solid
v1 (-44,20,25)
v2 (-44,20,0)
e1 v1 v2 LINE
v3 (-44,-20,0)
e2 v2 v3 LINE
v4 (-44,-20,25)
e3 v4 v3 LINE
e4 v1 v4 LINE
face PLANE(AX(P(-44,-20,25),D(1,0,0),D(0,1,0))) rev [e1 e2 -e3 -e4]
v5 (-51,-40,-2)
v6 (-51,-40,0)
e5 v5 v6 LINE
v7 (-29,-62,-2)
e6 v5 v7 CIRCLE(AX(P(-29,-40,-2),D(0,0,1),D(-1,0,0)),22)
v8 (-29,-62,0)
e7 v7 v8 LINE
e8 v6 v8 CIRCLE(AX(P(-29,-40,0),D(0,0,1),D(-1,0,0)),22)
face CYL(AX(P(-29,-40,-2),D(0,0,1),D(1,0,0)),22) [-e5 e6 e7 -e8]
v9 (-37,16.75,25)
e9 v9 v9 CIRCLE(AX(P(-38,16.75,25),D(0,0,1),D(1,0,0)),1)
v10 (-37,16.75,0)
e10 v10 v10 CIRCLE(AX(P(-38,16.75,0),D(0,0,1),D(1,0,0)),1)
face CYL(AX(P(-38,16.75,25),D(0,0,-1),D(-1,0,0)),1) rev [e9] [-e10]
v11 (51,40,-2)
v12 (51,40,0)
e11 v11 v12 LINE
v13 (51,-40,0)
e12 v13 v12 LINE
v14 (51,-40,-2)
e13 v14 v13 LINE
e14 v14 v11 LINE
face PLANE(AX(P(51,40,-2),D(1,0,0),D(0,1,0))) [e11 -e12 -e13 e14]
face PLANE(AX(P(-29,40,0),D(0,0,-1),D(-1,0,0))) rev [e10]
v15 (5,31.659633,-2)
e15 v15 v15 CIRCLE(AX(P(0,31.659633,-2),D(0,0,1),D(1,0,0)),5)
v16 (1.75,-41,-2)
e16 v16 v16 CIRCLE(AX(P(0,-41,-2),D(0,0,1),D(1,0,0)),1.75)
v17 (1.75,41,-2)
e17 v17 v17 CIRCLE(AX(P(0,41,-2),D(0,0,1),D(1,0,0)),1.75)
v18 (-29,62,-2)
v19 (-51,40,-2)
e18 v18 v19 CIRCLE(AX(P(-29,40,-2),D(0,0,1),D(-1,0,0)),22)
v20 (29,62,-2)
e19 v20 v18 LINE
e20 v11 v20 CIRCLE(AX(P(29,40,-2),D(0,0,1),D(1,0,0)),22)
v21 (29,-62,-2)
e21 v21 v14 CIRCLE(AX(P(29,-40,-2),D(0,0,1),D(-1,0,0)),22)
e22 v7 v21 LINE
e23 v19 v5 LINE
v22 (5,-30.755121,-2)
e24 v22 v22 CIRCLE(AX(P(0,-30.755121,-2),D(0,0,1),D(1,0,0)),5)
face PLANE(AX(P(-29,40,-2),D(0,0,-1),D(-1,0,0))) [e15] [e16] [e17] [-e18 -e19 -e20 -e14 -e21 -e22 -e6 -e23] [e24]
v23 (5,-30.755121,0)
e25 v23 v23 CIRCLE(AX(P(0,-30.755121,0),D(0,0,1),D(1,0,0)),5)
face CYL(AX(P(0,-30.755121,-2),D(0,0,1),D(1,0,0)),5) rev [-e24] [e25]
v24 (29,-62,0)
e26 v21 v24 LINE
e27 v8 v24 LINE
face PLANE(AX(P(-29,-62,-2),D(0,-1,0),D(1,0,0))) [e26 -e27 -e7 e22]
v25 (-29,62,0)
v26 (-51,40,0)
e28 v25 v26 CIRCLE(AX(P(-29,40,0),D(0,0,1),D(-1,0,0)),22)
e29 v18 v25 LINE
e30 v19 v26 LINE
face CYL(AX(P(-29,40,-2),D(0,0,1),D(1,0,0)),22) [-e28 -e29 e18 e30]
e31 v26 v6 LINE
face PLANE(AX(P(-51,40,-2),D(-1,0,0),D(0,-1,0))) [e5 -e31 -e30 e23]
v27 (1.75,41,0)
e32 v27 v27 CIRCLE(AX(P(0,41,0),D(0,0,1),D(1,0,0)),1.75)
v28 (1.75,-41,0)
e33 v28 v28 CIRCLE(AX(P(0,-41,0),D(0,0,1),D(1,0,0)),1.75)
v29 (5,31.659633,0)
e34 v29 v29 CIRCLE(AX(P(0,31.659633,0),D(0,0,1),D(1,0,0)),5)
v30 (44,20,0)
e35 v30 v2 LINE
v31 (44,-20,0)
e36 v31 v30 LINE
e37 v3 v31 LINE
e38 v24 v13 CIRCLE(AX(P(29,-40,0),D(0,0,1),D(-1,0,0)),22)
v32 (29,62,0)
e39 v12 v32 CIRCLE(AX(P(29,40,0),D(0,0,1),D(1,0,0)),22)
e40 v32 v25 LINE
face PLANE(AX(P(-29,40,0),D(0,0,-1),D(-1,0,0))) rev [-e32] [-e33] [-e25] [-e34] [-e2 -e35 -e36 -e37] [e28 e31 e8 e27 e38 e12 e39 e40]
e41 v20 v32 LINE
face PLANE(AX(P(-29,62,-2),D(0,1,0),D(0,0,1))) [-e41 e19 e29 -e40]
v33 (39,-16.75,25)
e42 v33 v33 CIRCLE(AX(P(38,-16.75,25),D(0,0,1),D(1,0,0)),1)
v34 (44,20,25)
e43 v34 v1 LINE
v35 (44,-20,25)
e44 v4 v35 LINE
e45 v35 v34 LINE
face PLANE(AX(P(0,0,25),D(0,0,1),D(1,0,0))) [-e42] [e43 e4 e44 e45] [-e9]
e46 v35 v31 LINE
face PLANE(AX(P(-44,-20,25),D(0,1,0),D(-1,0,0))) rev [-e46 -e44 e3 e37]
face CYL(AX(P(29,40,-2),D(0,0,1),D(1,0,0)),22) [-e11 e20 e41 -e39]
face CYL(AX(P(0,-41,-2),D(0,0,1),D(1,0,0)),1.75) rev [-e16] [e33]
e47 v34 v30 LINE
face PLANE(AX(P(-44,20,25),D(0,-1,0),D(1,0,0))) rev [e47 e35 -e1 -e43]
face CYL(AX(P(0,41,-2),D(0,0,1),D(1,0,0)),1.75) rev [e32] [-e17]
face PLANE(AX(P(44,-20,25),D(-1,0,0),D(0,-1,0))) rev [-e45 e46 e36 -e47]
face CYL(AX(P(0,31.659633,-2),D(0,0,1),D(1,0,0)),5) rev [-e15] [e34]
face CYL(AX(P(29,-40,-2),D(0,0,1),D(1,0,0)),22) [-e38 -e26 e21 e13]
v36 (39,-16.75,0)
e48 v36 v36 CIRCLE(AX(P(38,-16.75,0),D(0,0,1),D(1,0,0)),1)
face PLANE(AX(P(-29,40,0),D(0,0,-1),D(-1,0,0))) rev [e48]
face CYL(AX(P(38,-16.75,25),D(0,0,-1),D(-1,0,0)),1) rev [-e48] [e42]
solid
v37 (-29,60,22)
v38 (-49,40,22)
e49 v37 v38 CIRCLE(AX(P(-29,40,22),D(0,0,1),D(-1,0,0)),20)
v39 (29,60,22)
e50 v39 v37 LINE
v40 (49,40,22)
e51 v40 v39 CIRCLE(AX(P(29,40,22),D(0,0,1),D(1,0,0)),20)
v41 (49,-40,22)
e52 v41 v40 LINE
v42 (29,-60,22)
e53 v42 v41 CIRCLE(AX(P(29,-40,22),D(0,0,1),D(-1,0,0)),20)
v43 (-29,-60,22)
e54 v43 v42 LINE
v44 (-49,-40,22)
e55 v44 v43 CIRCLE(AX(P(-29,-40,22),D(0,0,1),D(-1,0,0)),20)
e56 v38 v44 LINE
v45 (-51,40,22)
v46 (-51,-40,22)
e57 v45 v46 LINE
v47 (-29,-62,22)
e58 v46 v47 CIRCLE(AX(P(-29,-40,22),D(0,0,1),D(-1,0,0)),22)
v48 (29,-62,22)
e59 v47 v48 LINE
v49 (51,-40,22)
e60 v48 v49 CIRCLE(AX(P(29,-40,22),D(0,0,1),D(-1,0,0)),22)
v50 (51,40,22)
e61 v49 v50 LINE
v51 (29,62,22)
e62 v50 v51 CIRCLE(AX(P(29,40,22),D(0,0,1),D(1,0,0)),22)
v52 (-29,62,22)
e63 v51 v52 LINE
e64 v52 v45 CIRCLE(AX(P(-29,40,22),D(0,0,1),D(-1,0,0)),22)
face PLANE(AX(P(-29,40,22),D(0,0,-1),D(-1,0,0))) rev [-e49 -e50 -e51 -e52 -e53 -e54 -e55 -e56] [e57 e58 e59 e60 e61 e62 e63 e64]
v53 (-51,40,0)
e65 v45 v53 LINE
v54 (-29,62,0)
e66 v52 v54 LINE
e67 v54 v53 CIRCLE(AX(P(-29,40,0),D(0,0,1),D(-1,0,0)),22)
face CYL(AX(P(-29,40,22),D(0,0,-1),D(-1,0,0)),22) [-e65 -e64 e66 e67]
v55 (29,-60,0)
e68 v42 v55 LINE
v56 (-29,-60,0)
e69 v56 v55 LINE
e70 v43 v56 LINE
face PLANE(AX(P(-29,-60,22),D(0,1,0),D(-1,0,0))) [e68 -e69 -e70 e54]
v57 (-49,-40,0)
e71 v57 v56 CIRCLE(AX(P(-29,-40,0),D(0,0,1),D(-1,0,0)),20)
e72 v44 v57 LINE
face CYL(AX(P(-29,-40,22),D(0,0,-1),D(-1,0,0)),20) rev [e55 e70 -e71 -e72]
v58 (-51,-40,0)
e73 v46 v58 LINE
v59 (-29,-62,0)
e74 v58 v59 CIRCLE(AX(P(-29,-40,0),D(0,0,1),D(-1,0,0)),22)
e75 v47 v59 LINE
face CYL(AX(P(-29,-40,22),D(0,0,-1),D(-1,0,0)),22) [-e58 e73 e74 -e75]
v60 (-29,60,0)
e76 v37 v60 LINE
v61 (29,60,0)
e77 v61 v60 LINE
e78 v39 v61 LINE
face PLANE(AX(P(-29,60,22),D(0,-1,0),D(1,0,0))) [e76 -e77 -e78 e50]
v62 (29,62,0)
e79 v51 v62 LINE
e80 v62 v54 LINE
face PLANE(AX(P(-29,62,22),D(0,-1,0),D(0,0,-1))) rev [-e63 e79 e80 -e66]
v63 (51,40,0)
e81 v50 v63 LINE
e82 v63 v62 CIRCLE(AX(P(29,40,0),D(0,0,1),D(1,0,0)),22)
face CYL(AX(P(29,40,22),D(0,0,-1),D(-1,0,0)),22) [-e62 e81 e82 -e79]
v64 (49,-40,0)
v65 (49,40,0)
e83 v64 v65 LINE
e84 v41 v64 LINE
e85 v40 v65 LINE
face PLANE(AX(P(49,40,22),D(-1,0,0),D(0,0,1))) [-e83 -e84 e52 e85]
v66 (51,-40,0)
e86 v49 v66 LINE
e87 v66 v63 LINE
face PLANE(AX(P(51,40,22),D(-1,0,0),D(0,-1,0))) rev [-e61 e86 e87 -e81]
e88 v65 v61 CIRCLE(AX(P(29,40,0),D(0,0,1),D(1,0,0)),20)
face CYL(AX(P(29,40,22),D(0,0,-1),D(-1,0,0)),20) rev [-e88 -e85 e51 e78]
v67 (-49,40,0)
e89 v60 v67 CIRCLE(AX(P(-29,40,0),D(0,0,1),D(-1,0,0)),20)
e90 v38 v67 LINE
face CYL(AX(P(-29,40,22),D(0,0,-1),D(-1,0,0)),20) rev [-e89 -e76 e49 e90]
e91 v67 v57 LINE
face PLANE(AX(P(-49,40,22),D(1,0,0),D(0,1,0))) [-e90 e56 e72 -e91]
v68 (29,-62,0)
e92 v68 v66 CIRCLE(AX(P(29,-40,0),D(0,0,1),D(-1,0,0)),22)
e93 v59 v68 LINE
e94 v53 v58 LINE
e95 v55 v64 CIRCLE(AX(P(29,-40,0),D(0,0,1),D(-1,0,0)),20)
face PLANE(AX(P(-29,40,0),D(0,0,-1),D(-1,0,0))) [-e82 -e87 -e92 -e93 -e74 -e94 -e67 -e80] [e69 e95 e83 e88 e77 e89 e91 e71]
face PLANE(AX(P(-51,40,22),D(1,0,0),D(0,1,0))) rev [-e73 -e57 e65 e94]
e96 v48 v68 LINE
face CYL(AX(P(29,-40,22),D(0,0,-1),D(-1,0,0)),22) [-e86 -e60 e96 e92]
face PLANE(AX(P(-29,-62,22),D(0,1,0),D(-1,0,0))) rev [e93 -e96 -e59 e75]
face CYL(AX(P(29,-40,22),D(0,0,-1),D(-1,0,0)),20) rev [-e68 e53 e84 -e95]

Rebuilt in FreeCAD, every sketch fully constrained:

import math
import FreeCAD as App
import Part
import Sketcher
from FreeCAD import Vector
Q = App.Units.Quantity

doc = App.newDocument("Part")
body = doc.addObject("PartDesign::Body", "Body")

# Sketch on XY plane
sketch1 = body.newObject("Sketcher::SketchObject", "Sketch")
sketch1.AttachmentSupport = (doc.getObject("XY_Plane"), [""])
sketch1.MapMode = "FlatFace"
sketch1.addGeometry([
    Part.LineSegment(Vector(29, 62, 0), Vector(-29, 62, 0)),  # 0
    Part.ArcOfCircle(Part.Circle(Vector(-29, 40, 0), Vector(0, 0, 1), 22), math.radians(90), math.radians(180)),  # 1
    Part.LineSegment(Vector(-51, 40, 0), Vector(-51, -40, 0)),  # 2
    Part.ArcOfCircle(Part.Circle(Vector(-29, -40, 0), Vector(0, 0, 1), 22), math.radians(180), math.radians(270)),  # 3
    Part.LineSegment(Vector(-29, -62, 0), Vector(29, -62, 0)),  # 4
    Part.ArcOfCircle(Part.Circle(Vector(29, -40, 0), Vector(0, 0, 1), 22), math.radians(-90), math.radians(0)),  # 5
    Part.LineSegment(Vector(51, -40, 0), Vector(51, 40, 0)),  # 6
    Part.ArcOfCircle(Part.Circle(Vector(29, 40, 0), Vector(0, 0, 1), 22), math.radians(0), math.radians(90)),  # 7
    Part.LineSegment(Vector(-29, 60, 0), Vector(29, 60, 0)),  # 8
    Part.ArcOfCircle(Part.Circle(Vector(29, 40, 0), Vector(0, 0, 1), 20), math.radians(0), math.radians(90)),  # 9
    Part.LineSegment(Vector(49, 40, 0), Vector(49, -40, 0)),  # 10
    Part.ArcOfCircle(Part.Circle(Vector(29, -40, 0), Vector(0, 0, 1), 20), math.radians(-90), math.radians(0)),  # 11
    Part.LineSegment(Vector(29, -60, 0), Vector(-29, -60, 0)),  # 12
    Part.ArcOfCircle(Part.Circle(Vector(-29, -40, 0), Vector(0, 0, 1), 20), math.radians(180), math.radians(270)),  # 13
    Part.LineSegment(Vector(-49, -40, 0), Vector(-49, 40, 0)),  # 14
    Part.ArcOfCircle(Part.Circle(Vector(-29, 40, 0), Vector(0, 0, 1), 20), math.radians(90), math.radians(180)),  # 15
], False)
sketch1.addConstraint([
    Sketcher.Constraint("Tangent", 0, 2, 1, 1),
    Sketcher.Constraint("Tangent", 1, 2, 2, 1),
    Sketcher.Constraint("Tangent", 2, 2, 3, 1),
    Sketcher.Constraint("Tangent", 3, 2, 4, 1),
    Sketcher.Constraint("Tangent", 4, 2, 5, 1),
    Sketcher.Constraint("Tangent", 5, 2, 6, 1),
    Sketcher.Constraint("Tangent", 6, 2, 7, 1),
    Sketcher.Constraint("Tangent", 7, 2, 0, 1),
    Sketcher.Constraint("Tangent", 8, 2, 9, 2),
    Sketcher.Constraint("Tangent", 9, 1, 10, 1),
    Sketcher.Constraint("Tangent", 10, 2, 11, 2),
    Sketcher.Constraint("Tangent", 11, 1, 12, 1),
    Sketcher.Constraint("Tangent", 12, 2, 13, 2),
    Sketcher.Constraint("Tangent", 13, 1, 14, 1),
    Sketcher.Constraint("Tangent", 14, 2, 15, 2),
    Sketcher.Constraint("Tangent", 15, 1, 8, 1),
    Sketcher.Constraint("Horizontal", 0),
    Sketcher.Constraint("Vertical", 2),
    Sketcher.Constraint("Horizontal", 4),
    Sketcher.Constraint("Vertical", 6),
    Sketcher.Constraint("Horizontal", 8),
    Sketcher.Constraint("Vertical", 10),
    Sketcher.Constraint("Horizontal", 12),
    Sketcher.Constraint("Vertical", 14),
    Sketcher.Constraint("Coincident", 9, 3, 7, 3),
    Sketcher.Constraint("Coincident", 11, 3, 5, 3),
    Sketcher.Constraint("Coincident", 13, 3, 3, 3),
    Sketcher.Constraint("Equal", 1, 3),
    Sketcher.Constraint("Equal", 3, 5),
    Sketcher.Constraint("Equal", 5, 7),
    Sketcher.Constraint("Equal", 13, 15),
    Sketcher.Constraint("Symmetric", 1, 3, 5, 3, -1, 1),
    Sketcher.Constraint("Radius", 1, Q("22 mm")),
    Sketcher.Constraint("Radius", 9, Q("20 mm")),
    Sketcher.Constraint("DistanceX", 0, 2, 0, 1, Q("58 mm")),
    Sketcher.Constraint("DistanceY", 2, 2, 2, 1, Q("80 mm")),
])
pad1 = body.newObject("PartDesign::Pad", "Pad")
pad1.Profile = sketch1
pad1.Length = 22
body2 = doc.addObject("PartDesign::Body", "Body001")

# Sketch on XY plane
sketch2 = body2.newObject("Sketcher::SketchObject", "Sketch001")
sketch2.AttachmentSupport = (doc.getObject("XY_Plane001"), [""])
sketch2.MapMode = "FlatFace"
sketch2.addGeometry([
    Part.LineSegment(Vector(-44, 20, 0), Vector(-44, -20, 0)),  # 0
    Part.LineSegment(Vector(-44, -20, 0), Vector(44, -20, 0)),  # 1
    Part.LineSegment(Vector(44, -20, 0), Vector(44, 20, 0)),  # 2
    Part.LineSegment(Vector(44, 20, 0), Vector(-44, 20, 0)),  # 3
    Part.Circle(Vector(38, -16.8, 0), Vector(0, 0, 1), 1),  # 4
    Part.Circle(Vector(-38, 16.8, 0), Vector(0, 0, 1), 1),  # 5
], False)
sketch2.addConstraint([
    Sketcher.Constraint("Coincident", 0, 2, 1, 1),
    Sketcher.Constraint("Coincident", 1, 2, 2, 1),
    Sketcher.Constraint("Coincident", 2, 2, 3, 1),
    Sketcher.Constraint("Coincident", 3, 2, 0, 1),
    Sketcher.Constraint("Vertical", 0),
    Sketcher.Constraint("Horizontal", 1),
    Sketcher.Constraint("Vertical", 2),
    Sketcher.Constraint("Horizontal", 3),
    Sketcher.Constraint("Equal", 4, 5),
    Sketcher.Constraint("Symmetric", 4, 3, 5, 3, -1, 1),
    Sketcher.Constraint("Symmetric", 0, 2, 2, 2, -1, 1),
    Sketcher.Constraint("Diameter", 4, Q("2 mm")),
    Sketcher.Constraint("DistanceX", 1, 1, 1, 2, Q("88 mm")),
    Sketcher.Constraint("DistanceY", 0, 2, 0, 1, Q("40 mm")),
    Sketcher.Constraint("DistanceX", -1, 1, 4, 3, Q("38 mm")),
    Sketcher.Constraint("DistanceY", 4, 3, 5, 3, Q("33.5 mm")),
])
pad2 = body2.newObject("PartDesign::Pad", "Pad001")
pad2.Profile = sketch2
pad2.Length = 25

# Sketch on XY plane
sketch3 = body2.newObject("Sketcher::SketchObject", "Sketch002")
sketch3.AttachmentSupport = (doc.getObject("XY_Plane001"), [""])
sketch3.MapMode = "FlatFace"
sketch3.AttachmentOffset = App.Placement(Vector(0, 0, -2), App.Rotation())
sketch3.addGeometry([
    Part.LineSegment(Vector(29, 62, 0), Vector(-29, 62, 0)),  # 0
    Part.ArcOfCircle(Part.Circle(Vector(-29, 40, 0), Vector(0, 0, 1), 22), math.radians(90), math.radians(180)),  # 1
    Part.LineSegment(Vector(-51, 40, 0), Vector(-51, -40, 0)),  # 2
    Part.ArcOfCircle(Part.Circle(Vector(-29, -40, 0), Vector(0, 0, 1), 22), math.radians(180), math.radians(270)),  # 3
    Part.LineSegment(Vector(-29, -62, 0), Vector(29, -62, 0)),  # 4
    Part.ArcOfCircle(Part.Circle(Vector(29, -40, 0), Vector(0, 0, 1), 22), math.radians(-90), math.radians(0)),  # 5
    Part.LineSegment(Vector(51, -40, 0), Vector(51, 40, 0)),  # 6
    Part.ArcOfCircle(Part.Circle(Vector(29, 40, 0), Vector(0, 0, 1), 22), math.radians(0), math.radians(90)),  # 7
    Part.Circle(Vector(0, -41, 0), Vector(0, 0, 1), 1.8),  # 8
    Part.Circle(Vector(0, -30.8, 0), Vector(0, 0, 1), 5),  # 9
    Part.Circle(Vector(0, 31.7, 0), Vector(0, 0, 1), 5),  # 10
    Part.Circle(Vector(0, 41, 0), Vector(0, 0, 1), 1.8),  # 11
], False)
sketch3.addConstraint([
    Sketcher.Constraint("Tangent", 0, 2, 1, 1),
    Sketcher.Constraint("Tangent", 1, 2, 2, 1),
    Sketcher.Constraint("Tangent", 2, 2, 3, 1),
    Sketcher.Constraint("Tangent", 3, 2, 4, 1),
    Sketcher.Constraint("Tangent", 4, 2, 5, 1),
    Sketcher.Constraint("Tangent", 5, 2, 6, 1),
    Sketcher.Constraint("Tangent", 6, 2, 7, 1),
    Sketcher.Constraint("Tangent", 7, 2, 0, 1),
    Sketcher.Constraint("Horizontal", 0),
    Sketcher.Constraint("Vertical", 2),
    Sketcher.Constraint("Horizontal", 4),
    Sketcher.Constraint("Vertical", 6),
    Sketcher.Constraint("Equal", 1, 3),
    Sketcher.Constraint("Equal", 3, 5),
    Sketcher.Constraint("Equal", 5, 7),
    Sketcher.Constraint("Equal", 9, 10),
    Sketcher.Constraint("Equal", 8, 11),
    Sketcher.Constraint("Symmetric", 1, 3, 5, 3, -1, 1),
    Sketcher.Constraint("Symmetric", 8, 3, 11, 3, -1, 1),
    Sketcher.Constraint("PointOnObject", 8, 3, -2),
    Sketcher.Constraint("PointOnObject", 9, 3, -2),
    Sketcher.Constraint("PointOnObject", 10, 3, -2),
    Sketcher.Constraint("Diameter", 9, Q("10 mm")),
    Sketcher.Constraint("Radius", 1, Q("22 mm")),
    Sketcher.Constraint("Diameter", 8, Q("3.5 mm")),
    Sketcher.Constraint("DistanceX", 0, 2, 0, 1, Q("58 mm")),
    Sketcher.Constraint("DistanceY", 2, 2, 2, 1, Q("80 mm")),
    Sketcher.Constraint("DistanceY", 8, 3, -1, 1, Q("41 mm")),
    Sketcher.Constraint("DistanceY", 9, 3, -1, 1, Q("30.755121 mm")),
    Sketcher.Constraint("DistanceY", -1, 1, 10, 3, Q("31.659633 mm")),
])
pad3 = body2.newObject("PartDesign::Pad", "Pad002")
pad3.Profile = sketch3
pad3.Length = 2

doc.recompute()
